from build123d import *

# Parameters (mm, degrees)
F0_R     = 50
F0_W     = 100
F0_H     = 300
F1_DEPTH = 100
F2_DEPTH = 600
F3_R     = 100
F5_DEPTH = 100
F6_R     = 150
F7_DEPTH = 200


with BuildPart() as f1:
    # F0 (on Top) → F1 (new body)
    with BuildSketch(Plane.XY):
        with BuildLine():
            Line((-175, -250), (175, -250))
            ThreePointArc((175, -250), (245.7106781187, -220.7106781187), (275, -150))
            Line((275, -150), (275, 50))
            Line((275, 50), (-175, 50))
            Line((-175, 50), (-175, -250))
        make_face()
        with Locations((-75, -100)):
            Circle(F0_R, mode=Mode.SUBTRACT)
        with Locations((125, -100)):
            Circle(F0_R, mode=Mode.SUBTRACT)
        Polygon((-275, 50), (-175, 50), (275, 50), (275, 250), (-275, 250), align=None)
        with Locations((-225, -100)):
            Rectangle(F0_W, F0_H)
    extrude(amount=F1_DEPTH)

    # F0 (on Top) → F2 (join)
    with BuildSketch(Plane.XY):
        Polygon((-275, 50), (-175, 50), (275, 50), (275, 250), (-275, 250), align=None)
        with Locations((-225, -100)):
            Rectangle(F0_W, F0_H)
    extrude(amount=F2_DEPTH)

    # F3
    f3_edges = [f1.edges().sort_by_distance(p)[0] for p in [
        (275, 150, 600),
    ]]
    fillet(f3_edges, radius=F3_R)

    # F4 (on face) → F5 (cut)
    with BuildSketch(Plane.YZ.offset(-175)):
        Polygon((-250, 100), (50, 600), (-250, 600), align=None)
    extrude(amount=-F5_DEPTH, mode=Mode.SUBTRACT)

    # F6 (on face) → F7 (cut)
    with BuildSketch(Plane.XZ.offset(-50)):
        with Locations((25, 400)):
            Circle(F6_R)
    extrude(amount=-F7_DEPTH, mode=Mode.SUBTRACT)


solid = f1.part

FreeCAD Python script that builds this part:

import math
import FreeCAD as App
import Part
import Sketcher
Q = App.Units.Quantity


def edges_at(feature, points):
    """Names of the edges that pass closest to the given points."""
    edges = feature.Shape.Edges
    near = lambda p: min(range(len(edges)), key=lambda i: edges[i].distToShape(Part.Vertex(*p))[0])
    return sorted({f"Edge{near(p) + 1}" for p in points})

doc = App.newDocument("Part")
body = doc.addObject("PartDesign::Body", "Body")

sketch1 = body.newObject("Sketcher::SketchObject", "Sketch")
sketch1.AttachmentSupport = (doc.getObject("XY_Plane"), [""])
sketch1.MapMode = "FlatFace"
sketch1.addGeometry(Part.ArcOfCircle(Part.Circle(App.Vector(175, -150, 0), App.Vector(0, 0, 1), 100), math.radians(-90), math.radians(0)), False)
sketch1.addGeometry(Part.LineSegment(App.Vector(275, -150, 0), App.Vector(275, 250, 0)), False)
sketch1.addGeometry(Part.LineSegment(App.Vector(275, 250, 0), App.Vector(-275, 250, 0)), False)
sketch1.addGeometry(Part.LineSegment(App.Vector(-275, 250, 0), App.Vector(-275, -250, 0)), False)
sketch1.addGeometry(Part.LineSegment(App.Vector(-275, -250, 0), App.Vector(175, -250, 0)), False)
sketch1.addGeometry(Part.Circle(App.Vector(-75, -100, 0), App.Vector(0, 0, 1), 50), False)
sketch1.addGeometry(Part.Circle(App.Vector(125, -100, 0), App.Vector(0, 0, 1), 50), False)
sketch1.addConstraint(Sketcher.Constraint("Tangent", 0, 2, 1, 1))
sketch1.addConstraint(Sketcher.Constraint("Coincident", 1, 2, 2, 1))
sketch1.addConstraint(Sketcher.Constraint("Coincident", 2, 2, 3, 1))
sketch1.addConstraint(Sketcher.Constraint("Coincident", 3, 2, 4, 1))
sketch1.addConstraint(Sketcher.Constraint("Tangent", 4, 2, 0, 1))
sketch1.addConstraint(Sketcher.Constraint("Vertical", 1))
sketch1.addConstraint(Sketcher.Constraint("Horizontal", 2))
sketch1.addConstraint(Sketcher.Constraint("Vertical", 3))
sketch1.addConstraint(Sketcher.Constraint("Horizontal", 4))
sketch1.addConstraint(Sketcher.Constraint("Equal", 5, 6))
sketch1.addConstraint(Sketcher.Constraint("Symmetric", 1, 2, 3, 2, -1, 1))
sketch1.addConstraint(Sketcher.Constraint("Horizontal", 5, 3, 6, 3))
sketch1.addConstraint(Sketcher.Constraint("Diameter", 5, Q("100 mm")))
sketch1.addConstraint(Sketcher.Constraint("Radius", 0, Q("100 mm")))
sketch1.addConstraint(Sketcher.Constraint("DistanceX", 2, 2, 2, 1, Q("550 mm")))
sketch1.addConstraint(Sketcher.Constraint("DistanceY", 1, 1, 1, 2, Q("400 mm")))
sketch1.addConstraint(Sketcher.Constraint("DistanceX", 5, 3, -1, 1, Q("75 mm")))
sketch1.addConstraint(Sketcher.Constraint("DistanceY", 5, 3, -1, 1, Q("100 mm")))
sketch1.addConstraint(Sketcher.Constraint("DistanceX", -1, 1, 6, 3, Q("125 mm")))
pad1 = body.newObject("PartDesign::Pad", "Pad")
pad1.Profile = sketch1
pad1.Length = 100

sketch2 = body.newObject("Sketcher::SketchObject", "Sketch001")
sketch2.AttachmentSupport = (doc.getObject("XY_Plane"), [""])
sketch2.MapMode = "FlatFace"
sketch2.addGeometry(Part.LineSegment(App.Vector(-175, 50, 0), App.Vector(275, 50, 0)), False)
sketch2.addGeometry(Part.LineSegment(App.Vector(275, 50, 0), App.Vector(275, 250, 0)), False)
sketch2.addGeometry(Part.LineSegment(App.Vector(275, 250, 0), App.Vector(-275, 250, 0)), False)
sketch2.addGeometry(Part.LineSegment(App.Vector(-275, 250, 0), App.Vector(-275, -250, 0)), False)
sketch2.addGeometry(Part.LineSegment(App.Vector(-275, -250, 0), App.Vector(-175, -250, 0)), False)
sketch2.addGeometry(Part.LineSegment(App.Vector(-175, -250, 0), App.Vector(-175, 50, 0)), False)
sketch2.addConstraint(Sketcher.Constraint("Coincident", 0, 2, 1, 1))
sketch2.addConstraint(Sketcher.Constraint("Coincident", 1, 2, 2, 1))
sketch2.addConstraint(Sketcher.Constraint("Coincident", 2, 2, 3, 1))
sketch2.addConstraint(Sketcher.Constraint("Coincident", 3, 2, 4, 1))
sketch2.addConstraint(Sketcher.Constraint("Coincident", 4, 2, 5, 1))
sketch2.addConstraint(Sketcher.Constraint("Coincident", 5, 2, 0, 1))
sketch2.addConstraint(Sketcher.Constraint("Horizontal", 0))
sketch2.addConstraint(Sketcher.Constraint("Vertical", 1))
sketch2.addConstraint(Sketcher.Constraint("Horizontal", 2))
sketch2.addConstraint(Sketcher.Constraint("Vertical", 3))
sketch2.addConstraint(Sketcher.Constraint("Horizontal", 4))
sketch2.addConstraint(Sketcher.Constraint("Vertical", 5))
sketch2.addConstraint(Sketcher.Constraint("Symmetric", 1, 2, 3, 2, -1, 1))
sketch2.addConstraint(Sketcher.Constraint("DistanceX", 0, 1, 0, 2, Q("450 mm")))
sketch2.addConstraint(Sketcher.Constraint("DistanceX", 2, 2, 2, 1, Q("550 mm")))
sketch2.addConstraint(Sketcher.Constraint("DistanceY", 1, 1, 1, 2, Q("200 mm")))
sketch2.addConstraint(Sketcher.Constraint("DistanceY", 3, 2, 3, 1, Q("500 mm")))
pad2 = body.newObject("PartDesign::Pad", "Pad001")
pad2.Profile = sketch2
pad2.Length = 600
doc.recompute()

fillet = body.newObject("PartDesign::Fillet", "Fillet")
fillet.Base = (pad2, edges_at(pad2, [(275, 150, 600)]))
fillet.Radius = 100

sketch3 = body.newObject("Sketcher::SketchObject", "Sketch002")
sketch3.AttachmentSupport = (doc.getObject("YZ_Plane"), [""])
sketch3.MapMode = "FlatFace"
sketch3.AttachmentOffset = App.Placement(App.Vector(0, 0, -175), App.Rotation())
sketch3.addGeometry(Part.LineSegment(App.Vector(-250, 100, 0), App.Vector(50, 600, 0)), False)
sketch3.addGeometry(Part.LineSegment(App.Vector(50, 600, 0), App.Vector(-250, 600, 0)), False)
sketch3.addGeometry(Part.LineSegment(App.Vector(-250, 600, 0), App.Vector(-250, 100, 0)), False)
sketch3.addConstraint(Sketcher.Constraint("Coincident", 0, 2, 1, 1))
sketch3.addConstraint(Sketcher.Constraint("Coincident", 1, 2, 2, 1))
sketch3.addConstraint(Sketcher.Constraint("Coincident", 2, 2, 0, 1))
sketch3.addConstraint(Sketcher.Constraint("Horizontal", 1))
sketch3.addConstraint(Sketcher.Constraint("Vertical", 2))
sketch3.addConstraint(Sketcher.Constraint("DistanceX", 1, 2, 1, 1, Q("300 mm")))
sketch3.addConstraint(Sketcher.Constraint("DistanceY", 2, 2, 2, 1, Q("500 mm")))
sketch3.addConstraint(Sketcher.Constraint("DistanceX", -1, 1, 0, 2, Q("50 mm")))
sketch3.addConstraint(Sketcher.Constraint("DistanceY", -1, 1, 0, 2, Q("600 mm")))
pocket1 = body.newObject("PartDesign::Pocket", "Pocket")
pocket1.Profile = sketch3
pocket1.Length = 100

sketch4 = body.newObject("Sketcher::SketchObject", "Sketch003")
sketch4.AttachmentSupport = (doc.getObject("XZ_Plane"), [""])
sketch4.MapMode = "FlatFace"
sketch4.AttachmentOffset = App.Placement(App.Vector(0, 0, -50), App.Rotation())
sketch4.addGeometry(Part.Circle(App.Vector(25, 400, 0), App.Vector(0, 0, 1), 150), False)
sketch4.addConstraint(Sketcher.Constraint("Diameter", 0, Q("300 mm")))
sketch4.addConstraint(Sketcher.Constraint("DistanceX", -1, 1, 0, 3, Q("25 mm")))
sketch4.addConstraint(Sketcher.Constraint("DistanceY", -1, 1, 0, 3, Q("400 mm")))
pocket2 = body.newObject("PartDesign::Pocket", "Pocket001")
pocket2.Profile = sketch4
pocket2.Length = 200

doc.recompute()
